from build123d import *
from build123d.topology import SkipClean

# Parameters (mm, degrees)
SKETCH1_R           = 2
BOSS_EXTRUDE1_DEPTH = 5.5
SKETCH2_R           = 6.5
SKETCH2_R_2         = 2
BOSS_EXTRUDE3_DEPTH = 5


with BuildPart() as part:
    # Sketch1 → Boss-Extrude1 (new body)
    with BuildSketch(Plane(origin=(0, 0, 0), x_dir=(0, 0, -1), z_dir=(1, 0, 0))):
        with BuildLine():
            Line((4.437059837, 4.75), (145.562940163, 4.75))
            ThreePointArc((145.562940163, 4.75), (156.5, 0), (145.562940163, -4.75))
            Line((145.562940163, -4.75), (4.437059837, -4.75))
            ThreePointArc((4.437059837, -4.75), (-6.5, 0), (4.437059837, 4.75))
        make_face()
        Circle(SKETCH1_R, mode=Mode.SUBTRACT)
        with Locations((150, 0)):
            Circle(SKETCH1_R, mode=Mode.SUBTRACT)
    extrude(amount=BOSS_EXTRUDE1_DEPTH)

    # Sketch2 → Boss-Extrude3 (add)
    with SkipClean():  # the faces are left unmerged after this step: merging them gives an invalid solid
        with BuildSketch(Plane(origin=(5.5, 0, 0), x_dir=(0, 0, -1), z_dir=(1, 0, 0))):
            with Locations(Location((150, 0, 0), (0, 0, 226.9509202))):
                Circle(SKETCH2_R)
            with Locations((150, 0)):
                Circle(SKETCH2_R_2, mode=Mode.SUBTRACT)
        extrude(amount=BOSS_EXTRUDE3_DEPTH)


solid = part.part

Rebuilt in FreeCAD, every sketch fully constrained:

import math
import FreeCAD as App
import Part
import Sketcher
Q = App.Units.Quantity

doc = App.newDocument("Part")
body = doc.addObject("PartDesign::Body", "Body")

# Sketch on YZ plane
sketch1 = doc.addObject("Sketcher::SketchObject", "Sketch")
body.addObject(sketch1)
sketch1.AttachmentSupport = (doc.YZ_Plane, [""])
sketch1.MapMode = "FlatFace"
sketch1.addGeometry([
    Part.LineSegment(App.Vector(4.75, -145.56294, 0), App.Vector(4.75, -4.43706, 0)),  # 0
    Part.ArcOfCircle(Part.Circle(App.Vector(0, 0, 0), App.Vector(0, 0, 1), 6.5), math.radians(-43.04908), math.radians(223.04908)),  # 1
    Part.LineSegment(App.Vector(-4.75, -4.43706, 0), App.Vector(-4.75, -145.56294, 0)),  # 2
    Part.ArcOfCircle(Part.Circle(App.Vector(0, -150, 0), App.Vector(0, 0, 1), 6.5), math.radians(136.95092), math.radians(403.04908)),  # 3
    Part.Circle(App.Vector(0, -150, 0), App.Vector(0, 0, 1), 2),  # 4
    Part.Circle(App.Vector(0, 0, 0), App.Vector(0, 0, 1), 2),  # 5
], False)
sketch1.addConstraint([
    Sketcher.Constraint("Coincident", 0, 2, 1, 1),
    Sketcher.Constraint("Coincident", 1, 2, 2, 1),
    Sketcher.Constraint("Coincident", 2, 2, 3, 1),
    Sketcher.Constraint("Coincident", 3, 2, 0, 1),
    Sketcher.Constraint("Vertical", 0),
    Sketcher.Constraint("Vertical", 2),
    Sketcher.Constraint("Coincident", 1, 3, -1, 1),
    Sketcher.Constraint("Coincident", 5, 3, -1, 1),
    Sketcher.Constraint("Coincident", 4, 3, 3, 3),
    Sketcher.Constraint("Equal", 1, 3),
    Sketcher.Constraint("Equal", 4, 5),
    Sketcher.Constraint("Symmetric", 2, 2, 3, 2, -2),
    Sketcher.Constraint("Diameter", 4, Q("4 mm")),
    Sketcher.Constraint("Radius", 1, Q("6.5 mm")),
    Sketcher.Constraint("DistanceY", 3, 3, -1, 1, Q("150 mm")),
    Sketcher.Constraint("DistanceX", 1, 2, 0, 2, Q("9.5 mm")),
])
pad1 = doc.addObject("PartDesign::Pad", "Pad")
body.addObject(pad1)
pad1.Profile = sketch1
pad1.Length = 5.5

# Sketch on YZ plane
sketch2 = doc.addObject("Sketcher::SketchObject", "Sketch001")
body.addObject(sketch2)
sketch2.AttachmentSupport = (doc.YZ_Plane, [""])
sketch2.MapMode = "FlatFace"
sketch2.AttachmentOffset = App.Placement(App.Vector(0, 0, 5.5), App.Rotation())
sketch2.addGeometry([
    Part.Circle(App.Vector(0, -150, 0), App.Vector(0, 0, 1), 6.5),
    Part.Circle(App.Vector(0, -150, 0), App.Vector(0, 0, 1), 2),
], False)
sketch2.addConstraint([
    Sketcher.Constraint("Coincident", 1, 3, 0, 3),
    Sketcher.Constraint("PointOnObject", 0, 3, -2),
    Sketcher.Constraint("Diameter", 0, Q("13 mm")),
    Sketcher.Constraint("Diameter", 1, Q("4 mm")),
    Sketcher.Constraint("DistanceY", 0, 3, -1, 1, Q("150 mm")),
])
pad2 = doc.addObject("PartDesign::Pad", "Pad001")
body.addObject(pad2)
pad2.Profile = sketch2
pad2.Length = 5

doc.recompute()
